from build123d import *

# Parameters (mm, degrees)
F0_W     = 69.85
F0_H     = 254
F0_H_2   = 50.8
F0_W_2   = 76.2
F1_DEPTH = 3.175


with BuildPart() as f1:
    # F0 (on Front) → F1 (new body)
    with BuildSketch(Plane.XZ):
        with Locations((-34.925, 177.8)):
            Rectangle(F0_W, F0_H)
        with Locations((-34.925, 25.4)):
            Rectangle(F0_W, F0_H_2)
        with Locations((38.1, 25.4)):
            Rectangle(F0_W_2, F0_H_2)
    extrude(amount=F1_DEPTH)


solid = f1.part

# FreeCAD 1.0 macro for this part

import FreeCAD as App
import Part
import Sketcher
from FreeCAD import Vector
Q = App.Units.Quantity

doc = App.newDocument("Part")
body = doc.addObject("PartDesign::Body", "Body")

# Sketch on XZ plane
sketch1 = doc.addObject("Sketcher::SketchObject", "Sketch")
body.addObject(sketch1)
sketch1.AttachmentSupport = (doc.XZ_Plane, [""])
sketch1.MapMode = "FlatFace"
sketch1.addGeometry([
    Part.LineSegment(Vector(-69.85, 304.8, 0), Vector(-69.85, 0, 0)),  # 0
    Part.LineSegment(Vector(-69.85, 0, 0), Vector(76.2, 0, 0)),  # 1
    Part.LineSegment(Vector(76.2, 0, 0), Vector(76.2, 50.8, 0)),  # 2
    Part.LineSegment(Vector(76.2, 50.8, 0), Vector(0, 50.8, 0)),  # 3
    Part.LineSegment(Vector(0, 50.8, 0), Vector(0, 304.8, 0)),  # 4
    Part.LineSegment(Vector(0, 304.8, 0), Vector(-69.85, 304.8, 0)),  # 5
], False)
sketch1.addConstraint([
    Sketcher.Constraint("Coincident", 0, 2, 1, 1),
    Sketcher.Constraint("Coincident", 1, 2, 2, 1),
    Sketcher.Constraint("Coincident", 2, 2, 3, 1),
    Sketcher.Constraint("Coincident", 3, 2, 4, 1),
    Sketcher.Constraint("Coincident", 4, 2, 5, 1),
    Sketcher.Constraint("Coincident", 5, 2, 0, 1),
    Sketcher.Constraint("Vertical", 0),
    Sketcher.Constraint("Horizontal", 1),
    Sketcher.Constraint("Vertical", 2),
    Sketcher.Constraint("Horizontal", 3),
    Sketcher.Constraint("Vertical", 4),
    Sketcher.Constraint("Horizontal", 5),
    Sketcher.Constraint("PointOnObject", 0, 2, -1),
    Sketcher.Constraint("PointOnObject", 3, 2, -2),
    Sketcher.Constraint("DistanceX", 3, 2, 3, 1, Q("3 in")),
    Sketcher.Constraint("DistanceY", 0, 2, 0, 1, Q("12 in")),
    Sketcher.Constraint("DistanceY", 2, 1, 2, 2, Q("2 in")),
    Sketcher.Constraint("DistanceX", 1, 1, 1, 2, Q("5.75 in")),
])
pad1 = doc.addObject("PartDesign::Pad", "Pad")
body.addObject(pad1)
pad1.Profile = sketch1
pad1.Length = Q("0.125 in")

doc.recompute()
